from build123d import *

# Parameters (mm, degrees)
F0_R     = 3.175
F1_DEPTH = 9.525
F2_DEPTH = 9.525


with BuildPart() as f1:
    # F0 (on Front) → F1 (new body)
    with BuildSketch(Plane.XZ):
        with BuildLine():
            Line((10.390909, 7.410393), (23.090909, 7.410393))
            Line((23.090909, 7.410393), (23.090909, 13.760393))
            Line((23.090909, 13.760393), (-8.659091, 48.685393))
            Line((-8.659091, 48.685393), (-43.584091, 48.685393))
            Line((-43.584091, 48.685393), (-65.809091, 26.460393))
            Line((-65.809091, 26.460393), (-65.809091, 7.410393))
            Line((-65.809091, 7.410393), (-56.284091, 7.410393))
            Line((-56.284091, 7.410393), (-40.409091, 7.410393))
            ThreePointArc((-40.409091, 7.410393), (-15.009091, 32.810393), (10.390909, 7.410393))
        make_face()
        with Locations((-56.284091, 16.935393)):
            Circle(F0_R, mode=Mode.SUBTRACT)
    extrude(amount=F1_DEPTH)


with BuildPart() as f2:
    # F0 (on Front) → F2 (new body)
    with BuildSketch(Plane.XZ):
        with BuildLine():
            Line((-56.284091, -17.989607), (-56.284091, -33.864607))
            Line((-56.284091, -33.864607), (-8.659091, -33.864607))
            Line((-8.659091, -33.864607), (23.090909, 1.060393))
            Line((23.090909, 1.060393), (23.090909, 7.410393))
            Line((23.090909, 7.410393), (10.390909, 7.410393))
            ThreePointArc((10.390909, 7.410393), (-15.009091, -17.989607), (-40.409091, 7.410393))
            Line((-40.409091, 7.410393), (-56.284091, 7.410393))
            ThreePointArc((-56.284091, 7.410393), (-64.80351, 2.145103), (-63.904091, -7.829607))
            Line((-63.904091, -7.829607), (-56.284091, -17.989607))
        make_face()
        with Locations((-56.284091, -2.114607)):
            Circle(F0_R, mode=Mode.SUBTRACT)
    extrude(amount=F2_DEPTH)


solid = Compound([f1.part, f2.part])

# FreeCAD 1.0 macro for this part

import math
import FreeCAD as App
import Part
import Sketcher

V = App.Vector
Q = App.Units.Quantity

doc = App.newDocument("Part")
body = doc.addObject("PartDesign::Body", "Body")

sketch1 = doc.addObject("Sketcher::SketchObject", "Sketch")
body.addObject(sketch1)
sketch1.AttachmentSupport = (doc.XZ_Plane, [""])
sketch1.MapMode = "FlatFace"
sketch1.addGeometry([
    Part.LineSegment(V(10.4, 7.4, 0), V(23.1, 7.4, 0)),
    Part.LineSegment(V(23.1, 7.4, 0), V(23.1, 13.8, 0)),
    Part.LineSegment(V(23.1, 13.8, 0), V(-8.7, 48.7, 0)),
    Part.LineSegment(V(-8.7, 48.7, 0), V(-43.6, 48.7, 0)),
    Part.LineSegment(V(-43.6, 48.7, 0), V(-65.8, 26.5, 0)),
    Part.LineSegment(V(-65.8, 26.5, 0), V(-65.8, 7.4, 0)),
    Part.LineSegment(V(-65.8, 7.4, 0), V(-40.4, 7.4, 0)),
    Part.ArcOfCircle(Part.Circle(V(-15, 7.4, 0), V(0, 0, 1), 25.4), math.radians(0), math.radians(180)),
    Part.Circle(V(-56.3, 16.9, 0), V(0, 0, 1), 3.2),
], False)
sketch1.addConstraint([
    Sketcher.Constraint("Coincident", 0, 2, 1, 1),
    Sketcher.Constraint("Coincident", 1, 2, 2, 1),
    Sketcher.Constraint("Coincident", 2, 2, 3, 1),
    Sketcher.Constraint("Coincident", 3, 2, 4, 1),
    Sketcher.Constraint("Coincident", 4, 2, 5, 1),
    Sketcher.Constraint("Coincident", 5, 2, 6, 1),
    Sketcher.Constraint("Coincident", 6, 2, 7, 2),
    Sketcher.Constraint("Coincident", 7, 1, 0, 1),
    Sketcher.Constraint("Horizontal", 0),
    Sketcher.Constraint("Vertical", 1),
    Sketcher.Constraint("Horizontal", 3),
    Sketcher.Constraint("Vertical", 5),
    Sketcher.Constraint("Horizontal", 6),
    Sketcher.Constraint("Horizontal", 7, 3, 0, 2),
    Sketcher.Constraint("Horizontal", 0, 2, 5, 2),
    Sketcher.Constraint("Radius", 7, Q("1 in")),
    Sketcher.Constraint("Diameter", 8, Q("0.25 in")),
    Sketcher.Constraint("DistanceX", 6, 1, 6, 2, Q("1 in")),
    Sketcher.Constraint("DistanceX", 0, 1, 0, 2, Q("0.5 in")),
    Sketcher.Constraint("Angle", 4, Q("-135 deg")),
    Sketcher.Constraint("DistanceY", 1, 1, 1, 2, Q("0.25 in")),
    Sketcher.Constraint("DistanceY", 5, 2, 5, 1, Q("0.75 in")),
    Sketcher.Constraint("DistanceX", 8, 3, 3, 2, Q("0.5 in")),
    Sketcher.Constraint("DistanceX", 3, 2, 3, 1, Q("1.375 in")),
    Sketcher.Constraint("DistanceX", 7, 3, 2, 2, Q("0.25 in")),
    Sketcher.Constraint("DistanceY", 8, 3, 2, 2, Q("1.25 in")),
    Sketcher.Constraint("DistanceX", 7, 3, -1, 1, Q("15.009091 mm")),
    Sketcher.Constraint("DistanceY", -1, 1, 7, 3, Q("7.410393 mm")),
])
pad1 = doc.addObject("PartDesign::Pad", "Pad")
body.addObject(pad1)
pad1.Profile = sketch1
pad1.Length = Q("0.375 in")
body2 = doc.addObject("PartDesign::Body", "Body001")

sketch2 = doc.addObject("Sketcher::SketchObject", "Sketch001")
body2.addObject(sketch2)
sketch2.AttachmentSupport = (doc.getObject("XZ_Plane001"), [""])
sketch2.MapMode = "FlatFace"
sketch2.addGeometry([
    Part.LineSegment(V(-56.3, -18, 0), V(-56.3, -33.9, 0)),
    Part.LineSegment(V(-56.3, -33.9, 0), V(-8.7, -33.9, 0)),
    Part.LineSegment(V(-8.7, -33.9, 0), V(23.1, 1.1, 0)),
    Part.LineSegment(V(23.1, 1.1, 0), V(23.1, 7.4, 0)),
    Part.LineSegment(V(23.1, 7.4, 0), V(10.4, 7.4, 0)),
    Part.ArcOfCircle(Part.Circle(V(-15, 7.4, 0), V(0, 0, 1), 25.4), math.radians(180), math.radians(360)),
    Part.LineSegment(V(-40.4, 7.4, 0), V(-56.3, 7.4, 0)),
    Part.ArcOfCircle(Part.Circle(V(-56.3, -2.1, 0), V(0, 0, 1), 9.5), math.radians(90), math.radians(217)),
    Part.LineSegment(V(-63.9, -7.8, 0), V(-56.3, -18, 0)),
    Part.Circle(V(-56.3, -2.1, 0), V(0, 0, 1), 3.2),
], False)
sketch2.addConstraint([
    Sketcher.Constraint("Coincident", 0, 2, 1, 1),
    Sketcher.Constraint("Coincident", 1, 2, 2, 1),
    Sketcher.Constraint("Coincident", 2, 2, 3, 1),
    Sketcher.Constraint("Coincident", 3, 2, 4, 1),
    Sketcher.Constraint("Coincident", 4, 2, 5, 2),
    Sketcher.Constraint("Coincident", 5, 1, 6, 1),
    Sketcher.Constraint("Tangent", 6, 2, 7, 1),
    Sketcher.Constraint("Tangent", 7, 2, 8, 1),
    Sketcher.Constraint("Coincident", 8, 2, 0, 1),
    Sketcher.Constraint("Vertical", 0),
    Sketcher.Constraint("Horizontal", 1),
    Sketcher.Constraint("Vertical", 3),
    Sketcher.Constraint("Horizontal", 4),
    Sketcher.Constraint("Horizontal", 6),
    Sketcher.Constraint("Coincident", 9, 3, 7, 3),
    Sketcher.Constraint("Horizontal", 5, 3, 3, 2),
    Sketcher.Constraint("Horizontal", 4, 2, 5, 1),
    Sketcher.Constraint("Vertical", 9, 3, 0, 2),
    Sketcher.Constraint("Equal", 6, 0),
    Sketcher.Constraint("Radius", 5, Q("1 in")),
    Sketcher.Constraint("Diameter", 9, Q("0.25 in")),
    Sketcher.Constraint("DistanceX", 4, 2, 4, 1, Q("0.5 in")),
    Sketcher.Constraint("Radius", 7, Q("0.375 in")),
    Sketcher.Constraint("DistanceY", 8, 2, 6, 2, Q("1 in")),
    Sketcher.Constraint("DistanceY", 3, 1, 3, 2, Q("0.25 in")),
    Sketcher.Constraint("DistanceX", 1, 1, 1, 2, Q("1.875 in")),
    Sketcher.Constraint("DistanceX", 6, 2, 6, 1, Q("0.625 in")),
    Sketcher.Constraint("DistanceX", 5, 3, -1, 1, Q("15.009091 mm")),
    Sketcher.Constraint("DistanceY", -1, 1, 5, 3, Q("7.410393 mm")),
])
pad2 = doc.addObject("PartDesign::Pad", "Pad001")
body2.addObject(pad2)
pad2.Profile = sketch2
pad2.Length = Q("0.375 in")

doc.recompute()
